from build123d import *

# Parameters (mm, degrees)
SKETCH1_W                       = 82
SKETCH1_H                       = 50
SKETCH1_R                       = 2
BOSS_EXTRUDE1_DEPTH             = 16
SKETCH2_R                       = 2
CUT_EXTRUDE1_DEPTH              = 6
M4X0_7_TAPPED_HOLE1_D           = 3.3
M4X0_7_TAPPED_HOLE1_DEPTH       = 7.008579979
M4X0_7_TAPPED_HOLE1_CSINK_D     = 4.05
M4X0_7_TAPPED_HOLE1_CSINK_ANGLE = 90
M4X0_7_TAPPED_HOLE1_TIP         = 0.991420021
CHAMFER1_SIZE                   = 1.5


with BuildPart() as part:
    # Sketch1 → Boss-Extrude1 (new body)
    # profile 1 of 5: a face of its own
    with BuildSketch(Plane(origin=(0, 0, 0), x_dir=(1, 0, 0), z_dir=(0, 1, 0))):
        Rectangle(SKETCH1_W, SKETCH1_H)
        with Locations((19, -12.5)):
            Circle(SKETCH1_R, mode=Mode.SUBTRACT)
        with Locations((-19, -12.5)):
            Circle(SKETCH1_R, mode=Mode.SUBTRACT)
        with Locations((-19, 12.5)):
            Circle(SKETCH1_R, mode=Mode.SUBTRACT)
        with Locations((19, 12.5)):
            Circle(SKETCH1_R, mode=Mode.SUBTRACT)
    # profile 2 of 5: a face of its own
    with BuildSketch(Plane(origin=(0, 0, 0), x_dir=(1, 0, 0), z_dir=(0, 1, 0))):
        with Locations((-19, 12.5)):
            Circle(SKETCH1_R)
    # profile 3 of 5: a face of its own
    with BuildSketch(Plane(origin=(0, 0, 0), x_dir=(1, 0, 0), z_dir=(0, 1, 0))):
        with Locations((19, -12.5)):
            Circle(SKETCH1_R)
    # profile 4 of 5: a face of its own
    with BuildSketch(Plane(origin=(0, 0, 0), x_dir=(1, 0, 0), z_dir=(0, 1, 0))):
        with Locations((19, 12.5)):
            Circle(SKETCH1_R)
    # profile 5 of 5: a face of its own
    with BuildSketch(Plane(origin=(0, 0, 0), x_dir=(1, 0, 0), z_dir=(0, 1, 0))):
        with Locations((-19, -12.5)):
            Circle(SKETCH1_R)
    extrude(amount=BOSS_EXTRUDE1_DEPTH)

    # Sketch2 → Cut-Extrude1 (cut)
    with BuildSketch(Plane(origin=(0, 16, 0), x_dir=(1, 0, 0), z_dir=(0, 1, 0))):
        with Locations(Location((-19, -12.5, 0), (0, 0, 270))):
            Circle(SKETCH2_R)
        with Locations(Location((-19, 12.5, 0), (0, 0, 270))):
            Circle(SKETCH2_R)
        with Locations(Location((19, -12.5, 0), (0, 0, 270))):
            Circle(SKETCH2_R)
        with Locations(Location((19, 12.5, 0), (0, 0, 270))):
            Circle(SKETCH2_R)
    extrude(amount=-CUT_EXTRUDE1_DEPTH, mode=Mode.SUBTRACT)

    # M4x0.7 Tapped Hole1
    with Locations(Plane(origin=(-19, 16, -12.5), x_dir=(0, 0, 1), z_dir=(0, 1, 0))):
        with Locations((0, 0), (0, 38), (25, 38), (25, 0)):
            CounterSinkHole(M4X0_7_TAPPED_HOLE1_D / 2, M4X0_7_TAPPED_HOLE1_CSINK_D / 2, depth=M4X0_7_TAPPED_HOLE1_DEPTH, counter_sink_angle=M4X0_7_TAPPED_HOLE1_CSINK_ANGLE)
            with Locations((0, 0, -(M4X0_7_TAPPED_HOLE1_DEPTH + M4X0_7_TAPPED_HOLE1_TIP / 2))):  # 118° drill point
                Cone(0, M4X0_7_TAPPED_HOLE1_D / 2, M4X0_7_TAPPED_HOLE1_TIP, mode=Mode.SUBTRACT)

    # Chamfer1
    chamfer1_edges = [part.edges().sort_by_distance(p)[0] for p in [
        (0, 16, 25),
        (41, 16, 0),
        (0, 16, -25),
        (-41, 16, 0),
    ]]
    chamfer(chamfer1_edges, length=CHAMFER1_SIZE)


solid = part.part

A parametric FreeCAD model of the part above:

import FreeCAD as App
import Part
import Sketcher

V = App.Vector


def edges_at(feature, points):
    """Names of the edges that pass closest to the given points."""
    edges = feature.Shape.Edges
    near = lambda p: min(range(len(edges)), key=lambda i: edges[i].distToShape(Part.Vertex(*p))[0])
    return sorted({f"Edge{near(p) + 1}" for p in points})


def add_polygon(sketch, points):
    """Adds a closed chain of lines whose ends are joined by coincident constraints."""
    first, n = sketch.GeometryCount, len(points)
    for a, b in zip(points, points[1:] + points[:1]):
        sketch.addGeometry(Part.LineSegment(App.Vector(*a, 0), App.Vector(*b, 0)), False)
    for i in range(n):
        sketch.addConstraint(Sketcher.Constraint("Coincident", first + i, 2, first + (i + 1) % n, 1))

doc = App.newDocument("Part")
body = doc.addObject("PartDesign::Body", "Body")

sketch1 = body.newObject("Sketcher::SketchObject", "Sketch")
sketch1.AttachmentSupport = (doc.getObject("XZ_Plane"), [""])
sketch1.MapMode = "FlatFace"
add_polygon(sketch1, [(-41, -25), (-41, 25), (41, 25), (41, -25)])
sketch1.addConstraint(Sketcher.Constraint("Vertical", 0))
sketch1.addConstraint(Sketcher.Constraint("Horizontal", 1))
sketch1.addConstraint(Sketcher.Constraint("Vertical", 2))
sketch1.addConstraint(Sketcher.Constraint("Horizontal", 3))
sketch1.addConstraint(Sketcher.Constraint("Symmetric", 0, 2, 2, 2, -1, 1))
sketch1.addConstraint(Sketcher.Constraint("DistanceX", 1, 1, 1, 2, 82.0))
sketch1.addConstraint(Sketcher.Constraint("DistanceY", 0, 1, 0, 2, 50.0))
pad1 = body.newObject("PartDesign::Pad", "Pad")
pad1.Profile = sketch1
pad1.Length = 16
pad1.Reversed = True

sketch2 = body.newObject("Sketcher::SketchObject", "Sketch001")
sketch2.AttachmentSupport = (doc.getObject("XZ_Plane"), [""])
sketch2.MapMode = "FlatFace"
sketch2.AttachmentOffset = App.Placement(V(0, 0, -16), App.Rotation())
sketch2.addGeometry(Part.Circle(V(-19, 12.5, 0), V(0, 0, 1), 2), False)
sketch2.addGeometry(Part.Circle(V(-19, -12.5, 0), V(0, 0, 1), 2), False)
sketch2.addGeometry(Part.Circle(V(19, 12.5, 0), V(0, 0, 1), 2), False)
sketch2.addGeometry(Part.Circle(V(19, -12.5, 0), V(0, 0, 1), 2), False)
sketch2.addConstraint(Sketcher.Constraint("Equal", 0, 1))
sketch2.addConstraint(Sketcher.Constraint("Equal", 1, 2))
sketch2.addConstraint(Sketcher.Constraint("Equal", 2, 3))
sketch2.addConstraint(Sketcher.Constraint("Symmetric", 1, 3, 2, 3, -1, 1))
sketch2.addConstraint(Sketcher.Constraint("Symmetric", 0, 3, 3, 3, -1, 1))
sketch2.addConstraint(Sketcher.Constraint("Symmetric", 0, 3, 2, 3, -2))
sketch2.addConstraint(Sketcher.Constraint("Diameter", 0, 4.0))
sketch2.addConstraint(Sketcher.Constraint("DistanceX", 0, 3, -1, 1, 19.0))
sketch2.addConstraint(Sketcher.Constraint("DistanceY", 1, 3, 0, 3, 25.0))
pocket1 = body.newObject("PartDesign::Pocket", "Pocket")
pocket1.Profile = sketch2
pocket1.Length = 6
pocket1.Reversed = True

sketch3 = body.newObject("Sketcher::SketchObject", "Sketch002")
sketch3.AttachmentSupport = (doc.getObject("XZ_Plane"), [""])
sketch3.MapMode = "FlatFace"
sketch3.AttachmentOffset = App.Placement(V(0, 0, -16), App.Rotation())
sketch3.addGeometry(Part.Circle(V(-19, -12.5, 0), V(0, 0, 1), 1.65), False)
sketch3.addGeometry(Part.Circle(V(19, -12.5, 0), V(0, 0, 1), 1.65), False)
sketch3.addGeometry(Part.Circle(V(19, 12.5, 0), V(0, 0, 1), 1.65), False)
sketch3.addGeometry(Part.Circle(V(-19, 12.5, 0), V(0, 0, 1), 1.65), False)
sketch3.addConstraint(Sketcher.Constraint("Equal", 0, 1))
sketch3.addConstraint(Sketcher.Constraint("Equal", 1, 2))
sketch3.addConstraint(Sketcher.Constraint("Equal", 2, 3))
sketch3.addConstraint(Sketcher.Constraint("Symmetric", 0, 3, 2, 3, -1, 1))
sketch3.addConstraint(Sketcher.Constraint("Symmetric", 1, 3, 3, 3, -1, 1))
sketch3.addConstraint(Sketcher.Constraint("Symmetric", 0, 3, 1, 3, -2))
sketch3.addConstraint(Sketcher.Constraint("Diameter", 0, 3.3))
sketch3.addConstraint(Sketcher.Constraint("DistanceX", 0, 3, -1, 1, 19.0))
sketch3.addConstraint(Sketcher.Constraint("DistanceY", 1, 3, 2, 3, 25.0))
doc.recompute()
hole = body.newObject("PartDesign::Hole", "Hole")
hole.Profile = sketch3
hole.ThreadType = "None"
hole.Diameter = 3.3
hole.DepthType = "Dimension"
hole.Depth = 7.00858
hole.DrillPoint = "Angled"
hole.DrillPointAngle = 118
hole.HoleCutType = "Countersink"
hole.HoleCutDiameter = 4.05
hole.HoleCutCountersinkAngle = 90
hole.Reversed = True
doc.recompute()

chamfer = body.newObject("PartDesign::Chamfer", "Chamfer")
chamfer.Base = (hole, edges_at(hole, [
    (0, 16, 25),
    (41, 16, 0),
    (0, 16, -25),
    (-41, 16, 0),
]))
chamfer.Size = 1.5

doc.recompute()
